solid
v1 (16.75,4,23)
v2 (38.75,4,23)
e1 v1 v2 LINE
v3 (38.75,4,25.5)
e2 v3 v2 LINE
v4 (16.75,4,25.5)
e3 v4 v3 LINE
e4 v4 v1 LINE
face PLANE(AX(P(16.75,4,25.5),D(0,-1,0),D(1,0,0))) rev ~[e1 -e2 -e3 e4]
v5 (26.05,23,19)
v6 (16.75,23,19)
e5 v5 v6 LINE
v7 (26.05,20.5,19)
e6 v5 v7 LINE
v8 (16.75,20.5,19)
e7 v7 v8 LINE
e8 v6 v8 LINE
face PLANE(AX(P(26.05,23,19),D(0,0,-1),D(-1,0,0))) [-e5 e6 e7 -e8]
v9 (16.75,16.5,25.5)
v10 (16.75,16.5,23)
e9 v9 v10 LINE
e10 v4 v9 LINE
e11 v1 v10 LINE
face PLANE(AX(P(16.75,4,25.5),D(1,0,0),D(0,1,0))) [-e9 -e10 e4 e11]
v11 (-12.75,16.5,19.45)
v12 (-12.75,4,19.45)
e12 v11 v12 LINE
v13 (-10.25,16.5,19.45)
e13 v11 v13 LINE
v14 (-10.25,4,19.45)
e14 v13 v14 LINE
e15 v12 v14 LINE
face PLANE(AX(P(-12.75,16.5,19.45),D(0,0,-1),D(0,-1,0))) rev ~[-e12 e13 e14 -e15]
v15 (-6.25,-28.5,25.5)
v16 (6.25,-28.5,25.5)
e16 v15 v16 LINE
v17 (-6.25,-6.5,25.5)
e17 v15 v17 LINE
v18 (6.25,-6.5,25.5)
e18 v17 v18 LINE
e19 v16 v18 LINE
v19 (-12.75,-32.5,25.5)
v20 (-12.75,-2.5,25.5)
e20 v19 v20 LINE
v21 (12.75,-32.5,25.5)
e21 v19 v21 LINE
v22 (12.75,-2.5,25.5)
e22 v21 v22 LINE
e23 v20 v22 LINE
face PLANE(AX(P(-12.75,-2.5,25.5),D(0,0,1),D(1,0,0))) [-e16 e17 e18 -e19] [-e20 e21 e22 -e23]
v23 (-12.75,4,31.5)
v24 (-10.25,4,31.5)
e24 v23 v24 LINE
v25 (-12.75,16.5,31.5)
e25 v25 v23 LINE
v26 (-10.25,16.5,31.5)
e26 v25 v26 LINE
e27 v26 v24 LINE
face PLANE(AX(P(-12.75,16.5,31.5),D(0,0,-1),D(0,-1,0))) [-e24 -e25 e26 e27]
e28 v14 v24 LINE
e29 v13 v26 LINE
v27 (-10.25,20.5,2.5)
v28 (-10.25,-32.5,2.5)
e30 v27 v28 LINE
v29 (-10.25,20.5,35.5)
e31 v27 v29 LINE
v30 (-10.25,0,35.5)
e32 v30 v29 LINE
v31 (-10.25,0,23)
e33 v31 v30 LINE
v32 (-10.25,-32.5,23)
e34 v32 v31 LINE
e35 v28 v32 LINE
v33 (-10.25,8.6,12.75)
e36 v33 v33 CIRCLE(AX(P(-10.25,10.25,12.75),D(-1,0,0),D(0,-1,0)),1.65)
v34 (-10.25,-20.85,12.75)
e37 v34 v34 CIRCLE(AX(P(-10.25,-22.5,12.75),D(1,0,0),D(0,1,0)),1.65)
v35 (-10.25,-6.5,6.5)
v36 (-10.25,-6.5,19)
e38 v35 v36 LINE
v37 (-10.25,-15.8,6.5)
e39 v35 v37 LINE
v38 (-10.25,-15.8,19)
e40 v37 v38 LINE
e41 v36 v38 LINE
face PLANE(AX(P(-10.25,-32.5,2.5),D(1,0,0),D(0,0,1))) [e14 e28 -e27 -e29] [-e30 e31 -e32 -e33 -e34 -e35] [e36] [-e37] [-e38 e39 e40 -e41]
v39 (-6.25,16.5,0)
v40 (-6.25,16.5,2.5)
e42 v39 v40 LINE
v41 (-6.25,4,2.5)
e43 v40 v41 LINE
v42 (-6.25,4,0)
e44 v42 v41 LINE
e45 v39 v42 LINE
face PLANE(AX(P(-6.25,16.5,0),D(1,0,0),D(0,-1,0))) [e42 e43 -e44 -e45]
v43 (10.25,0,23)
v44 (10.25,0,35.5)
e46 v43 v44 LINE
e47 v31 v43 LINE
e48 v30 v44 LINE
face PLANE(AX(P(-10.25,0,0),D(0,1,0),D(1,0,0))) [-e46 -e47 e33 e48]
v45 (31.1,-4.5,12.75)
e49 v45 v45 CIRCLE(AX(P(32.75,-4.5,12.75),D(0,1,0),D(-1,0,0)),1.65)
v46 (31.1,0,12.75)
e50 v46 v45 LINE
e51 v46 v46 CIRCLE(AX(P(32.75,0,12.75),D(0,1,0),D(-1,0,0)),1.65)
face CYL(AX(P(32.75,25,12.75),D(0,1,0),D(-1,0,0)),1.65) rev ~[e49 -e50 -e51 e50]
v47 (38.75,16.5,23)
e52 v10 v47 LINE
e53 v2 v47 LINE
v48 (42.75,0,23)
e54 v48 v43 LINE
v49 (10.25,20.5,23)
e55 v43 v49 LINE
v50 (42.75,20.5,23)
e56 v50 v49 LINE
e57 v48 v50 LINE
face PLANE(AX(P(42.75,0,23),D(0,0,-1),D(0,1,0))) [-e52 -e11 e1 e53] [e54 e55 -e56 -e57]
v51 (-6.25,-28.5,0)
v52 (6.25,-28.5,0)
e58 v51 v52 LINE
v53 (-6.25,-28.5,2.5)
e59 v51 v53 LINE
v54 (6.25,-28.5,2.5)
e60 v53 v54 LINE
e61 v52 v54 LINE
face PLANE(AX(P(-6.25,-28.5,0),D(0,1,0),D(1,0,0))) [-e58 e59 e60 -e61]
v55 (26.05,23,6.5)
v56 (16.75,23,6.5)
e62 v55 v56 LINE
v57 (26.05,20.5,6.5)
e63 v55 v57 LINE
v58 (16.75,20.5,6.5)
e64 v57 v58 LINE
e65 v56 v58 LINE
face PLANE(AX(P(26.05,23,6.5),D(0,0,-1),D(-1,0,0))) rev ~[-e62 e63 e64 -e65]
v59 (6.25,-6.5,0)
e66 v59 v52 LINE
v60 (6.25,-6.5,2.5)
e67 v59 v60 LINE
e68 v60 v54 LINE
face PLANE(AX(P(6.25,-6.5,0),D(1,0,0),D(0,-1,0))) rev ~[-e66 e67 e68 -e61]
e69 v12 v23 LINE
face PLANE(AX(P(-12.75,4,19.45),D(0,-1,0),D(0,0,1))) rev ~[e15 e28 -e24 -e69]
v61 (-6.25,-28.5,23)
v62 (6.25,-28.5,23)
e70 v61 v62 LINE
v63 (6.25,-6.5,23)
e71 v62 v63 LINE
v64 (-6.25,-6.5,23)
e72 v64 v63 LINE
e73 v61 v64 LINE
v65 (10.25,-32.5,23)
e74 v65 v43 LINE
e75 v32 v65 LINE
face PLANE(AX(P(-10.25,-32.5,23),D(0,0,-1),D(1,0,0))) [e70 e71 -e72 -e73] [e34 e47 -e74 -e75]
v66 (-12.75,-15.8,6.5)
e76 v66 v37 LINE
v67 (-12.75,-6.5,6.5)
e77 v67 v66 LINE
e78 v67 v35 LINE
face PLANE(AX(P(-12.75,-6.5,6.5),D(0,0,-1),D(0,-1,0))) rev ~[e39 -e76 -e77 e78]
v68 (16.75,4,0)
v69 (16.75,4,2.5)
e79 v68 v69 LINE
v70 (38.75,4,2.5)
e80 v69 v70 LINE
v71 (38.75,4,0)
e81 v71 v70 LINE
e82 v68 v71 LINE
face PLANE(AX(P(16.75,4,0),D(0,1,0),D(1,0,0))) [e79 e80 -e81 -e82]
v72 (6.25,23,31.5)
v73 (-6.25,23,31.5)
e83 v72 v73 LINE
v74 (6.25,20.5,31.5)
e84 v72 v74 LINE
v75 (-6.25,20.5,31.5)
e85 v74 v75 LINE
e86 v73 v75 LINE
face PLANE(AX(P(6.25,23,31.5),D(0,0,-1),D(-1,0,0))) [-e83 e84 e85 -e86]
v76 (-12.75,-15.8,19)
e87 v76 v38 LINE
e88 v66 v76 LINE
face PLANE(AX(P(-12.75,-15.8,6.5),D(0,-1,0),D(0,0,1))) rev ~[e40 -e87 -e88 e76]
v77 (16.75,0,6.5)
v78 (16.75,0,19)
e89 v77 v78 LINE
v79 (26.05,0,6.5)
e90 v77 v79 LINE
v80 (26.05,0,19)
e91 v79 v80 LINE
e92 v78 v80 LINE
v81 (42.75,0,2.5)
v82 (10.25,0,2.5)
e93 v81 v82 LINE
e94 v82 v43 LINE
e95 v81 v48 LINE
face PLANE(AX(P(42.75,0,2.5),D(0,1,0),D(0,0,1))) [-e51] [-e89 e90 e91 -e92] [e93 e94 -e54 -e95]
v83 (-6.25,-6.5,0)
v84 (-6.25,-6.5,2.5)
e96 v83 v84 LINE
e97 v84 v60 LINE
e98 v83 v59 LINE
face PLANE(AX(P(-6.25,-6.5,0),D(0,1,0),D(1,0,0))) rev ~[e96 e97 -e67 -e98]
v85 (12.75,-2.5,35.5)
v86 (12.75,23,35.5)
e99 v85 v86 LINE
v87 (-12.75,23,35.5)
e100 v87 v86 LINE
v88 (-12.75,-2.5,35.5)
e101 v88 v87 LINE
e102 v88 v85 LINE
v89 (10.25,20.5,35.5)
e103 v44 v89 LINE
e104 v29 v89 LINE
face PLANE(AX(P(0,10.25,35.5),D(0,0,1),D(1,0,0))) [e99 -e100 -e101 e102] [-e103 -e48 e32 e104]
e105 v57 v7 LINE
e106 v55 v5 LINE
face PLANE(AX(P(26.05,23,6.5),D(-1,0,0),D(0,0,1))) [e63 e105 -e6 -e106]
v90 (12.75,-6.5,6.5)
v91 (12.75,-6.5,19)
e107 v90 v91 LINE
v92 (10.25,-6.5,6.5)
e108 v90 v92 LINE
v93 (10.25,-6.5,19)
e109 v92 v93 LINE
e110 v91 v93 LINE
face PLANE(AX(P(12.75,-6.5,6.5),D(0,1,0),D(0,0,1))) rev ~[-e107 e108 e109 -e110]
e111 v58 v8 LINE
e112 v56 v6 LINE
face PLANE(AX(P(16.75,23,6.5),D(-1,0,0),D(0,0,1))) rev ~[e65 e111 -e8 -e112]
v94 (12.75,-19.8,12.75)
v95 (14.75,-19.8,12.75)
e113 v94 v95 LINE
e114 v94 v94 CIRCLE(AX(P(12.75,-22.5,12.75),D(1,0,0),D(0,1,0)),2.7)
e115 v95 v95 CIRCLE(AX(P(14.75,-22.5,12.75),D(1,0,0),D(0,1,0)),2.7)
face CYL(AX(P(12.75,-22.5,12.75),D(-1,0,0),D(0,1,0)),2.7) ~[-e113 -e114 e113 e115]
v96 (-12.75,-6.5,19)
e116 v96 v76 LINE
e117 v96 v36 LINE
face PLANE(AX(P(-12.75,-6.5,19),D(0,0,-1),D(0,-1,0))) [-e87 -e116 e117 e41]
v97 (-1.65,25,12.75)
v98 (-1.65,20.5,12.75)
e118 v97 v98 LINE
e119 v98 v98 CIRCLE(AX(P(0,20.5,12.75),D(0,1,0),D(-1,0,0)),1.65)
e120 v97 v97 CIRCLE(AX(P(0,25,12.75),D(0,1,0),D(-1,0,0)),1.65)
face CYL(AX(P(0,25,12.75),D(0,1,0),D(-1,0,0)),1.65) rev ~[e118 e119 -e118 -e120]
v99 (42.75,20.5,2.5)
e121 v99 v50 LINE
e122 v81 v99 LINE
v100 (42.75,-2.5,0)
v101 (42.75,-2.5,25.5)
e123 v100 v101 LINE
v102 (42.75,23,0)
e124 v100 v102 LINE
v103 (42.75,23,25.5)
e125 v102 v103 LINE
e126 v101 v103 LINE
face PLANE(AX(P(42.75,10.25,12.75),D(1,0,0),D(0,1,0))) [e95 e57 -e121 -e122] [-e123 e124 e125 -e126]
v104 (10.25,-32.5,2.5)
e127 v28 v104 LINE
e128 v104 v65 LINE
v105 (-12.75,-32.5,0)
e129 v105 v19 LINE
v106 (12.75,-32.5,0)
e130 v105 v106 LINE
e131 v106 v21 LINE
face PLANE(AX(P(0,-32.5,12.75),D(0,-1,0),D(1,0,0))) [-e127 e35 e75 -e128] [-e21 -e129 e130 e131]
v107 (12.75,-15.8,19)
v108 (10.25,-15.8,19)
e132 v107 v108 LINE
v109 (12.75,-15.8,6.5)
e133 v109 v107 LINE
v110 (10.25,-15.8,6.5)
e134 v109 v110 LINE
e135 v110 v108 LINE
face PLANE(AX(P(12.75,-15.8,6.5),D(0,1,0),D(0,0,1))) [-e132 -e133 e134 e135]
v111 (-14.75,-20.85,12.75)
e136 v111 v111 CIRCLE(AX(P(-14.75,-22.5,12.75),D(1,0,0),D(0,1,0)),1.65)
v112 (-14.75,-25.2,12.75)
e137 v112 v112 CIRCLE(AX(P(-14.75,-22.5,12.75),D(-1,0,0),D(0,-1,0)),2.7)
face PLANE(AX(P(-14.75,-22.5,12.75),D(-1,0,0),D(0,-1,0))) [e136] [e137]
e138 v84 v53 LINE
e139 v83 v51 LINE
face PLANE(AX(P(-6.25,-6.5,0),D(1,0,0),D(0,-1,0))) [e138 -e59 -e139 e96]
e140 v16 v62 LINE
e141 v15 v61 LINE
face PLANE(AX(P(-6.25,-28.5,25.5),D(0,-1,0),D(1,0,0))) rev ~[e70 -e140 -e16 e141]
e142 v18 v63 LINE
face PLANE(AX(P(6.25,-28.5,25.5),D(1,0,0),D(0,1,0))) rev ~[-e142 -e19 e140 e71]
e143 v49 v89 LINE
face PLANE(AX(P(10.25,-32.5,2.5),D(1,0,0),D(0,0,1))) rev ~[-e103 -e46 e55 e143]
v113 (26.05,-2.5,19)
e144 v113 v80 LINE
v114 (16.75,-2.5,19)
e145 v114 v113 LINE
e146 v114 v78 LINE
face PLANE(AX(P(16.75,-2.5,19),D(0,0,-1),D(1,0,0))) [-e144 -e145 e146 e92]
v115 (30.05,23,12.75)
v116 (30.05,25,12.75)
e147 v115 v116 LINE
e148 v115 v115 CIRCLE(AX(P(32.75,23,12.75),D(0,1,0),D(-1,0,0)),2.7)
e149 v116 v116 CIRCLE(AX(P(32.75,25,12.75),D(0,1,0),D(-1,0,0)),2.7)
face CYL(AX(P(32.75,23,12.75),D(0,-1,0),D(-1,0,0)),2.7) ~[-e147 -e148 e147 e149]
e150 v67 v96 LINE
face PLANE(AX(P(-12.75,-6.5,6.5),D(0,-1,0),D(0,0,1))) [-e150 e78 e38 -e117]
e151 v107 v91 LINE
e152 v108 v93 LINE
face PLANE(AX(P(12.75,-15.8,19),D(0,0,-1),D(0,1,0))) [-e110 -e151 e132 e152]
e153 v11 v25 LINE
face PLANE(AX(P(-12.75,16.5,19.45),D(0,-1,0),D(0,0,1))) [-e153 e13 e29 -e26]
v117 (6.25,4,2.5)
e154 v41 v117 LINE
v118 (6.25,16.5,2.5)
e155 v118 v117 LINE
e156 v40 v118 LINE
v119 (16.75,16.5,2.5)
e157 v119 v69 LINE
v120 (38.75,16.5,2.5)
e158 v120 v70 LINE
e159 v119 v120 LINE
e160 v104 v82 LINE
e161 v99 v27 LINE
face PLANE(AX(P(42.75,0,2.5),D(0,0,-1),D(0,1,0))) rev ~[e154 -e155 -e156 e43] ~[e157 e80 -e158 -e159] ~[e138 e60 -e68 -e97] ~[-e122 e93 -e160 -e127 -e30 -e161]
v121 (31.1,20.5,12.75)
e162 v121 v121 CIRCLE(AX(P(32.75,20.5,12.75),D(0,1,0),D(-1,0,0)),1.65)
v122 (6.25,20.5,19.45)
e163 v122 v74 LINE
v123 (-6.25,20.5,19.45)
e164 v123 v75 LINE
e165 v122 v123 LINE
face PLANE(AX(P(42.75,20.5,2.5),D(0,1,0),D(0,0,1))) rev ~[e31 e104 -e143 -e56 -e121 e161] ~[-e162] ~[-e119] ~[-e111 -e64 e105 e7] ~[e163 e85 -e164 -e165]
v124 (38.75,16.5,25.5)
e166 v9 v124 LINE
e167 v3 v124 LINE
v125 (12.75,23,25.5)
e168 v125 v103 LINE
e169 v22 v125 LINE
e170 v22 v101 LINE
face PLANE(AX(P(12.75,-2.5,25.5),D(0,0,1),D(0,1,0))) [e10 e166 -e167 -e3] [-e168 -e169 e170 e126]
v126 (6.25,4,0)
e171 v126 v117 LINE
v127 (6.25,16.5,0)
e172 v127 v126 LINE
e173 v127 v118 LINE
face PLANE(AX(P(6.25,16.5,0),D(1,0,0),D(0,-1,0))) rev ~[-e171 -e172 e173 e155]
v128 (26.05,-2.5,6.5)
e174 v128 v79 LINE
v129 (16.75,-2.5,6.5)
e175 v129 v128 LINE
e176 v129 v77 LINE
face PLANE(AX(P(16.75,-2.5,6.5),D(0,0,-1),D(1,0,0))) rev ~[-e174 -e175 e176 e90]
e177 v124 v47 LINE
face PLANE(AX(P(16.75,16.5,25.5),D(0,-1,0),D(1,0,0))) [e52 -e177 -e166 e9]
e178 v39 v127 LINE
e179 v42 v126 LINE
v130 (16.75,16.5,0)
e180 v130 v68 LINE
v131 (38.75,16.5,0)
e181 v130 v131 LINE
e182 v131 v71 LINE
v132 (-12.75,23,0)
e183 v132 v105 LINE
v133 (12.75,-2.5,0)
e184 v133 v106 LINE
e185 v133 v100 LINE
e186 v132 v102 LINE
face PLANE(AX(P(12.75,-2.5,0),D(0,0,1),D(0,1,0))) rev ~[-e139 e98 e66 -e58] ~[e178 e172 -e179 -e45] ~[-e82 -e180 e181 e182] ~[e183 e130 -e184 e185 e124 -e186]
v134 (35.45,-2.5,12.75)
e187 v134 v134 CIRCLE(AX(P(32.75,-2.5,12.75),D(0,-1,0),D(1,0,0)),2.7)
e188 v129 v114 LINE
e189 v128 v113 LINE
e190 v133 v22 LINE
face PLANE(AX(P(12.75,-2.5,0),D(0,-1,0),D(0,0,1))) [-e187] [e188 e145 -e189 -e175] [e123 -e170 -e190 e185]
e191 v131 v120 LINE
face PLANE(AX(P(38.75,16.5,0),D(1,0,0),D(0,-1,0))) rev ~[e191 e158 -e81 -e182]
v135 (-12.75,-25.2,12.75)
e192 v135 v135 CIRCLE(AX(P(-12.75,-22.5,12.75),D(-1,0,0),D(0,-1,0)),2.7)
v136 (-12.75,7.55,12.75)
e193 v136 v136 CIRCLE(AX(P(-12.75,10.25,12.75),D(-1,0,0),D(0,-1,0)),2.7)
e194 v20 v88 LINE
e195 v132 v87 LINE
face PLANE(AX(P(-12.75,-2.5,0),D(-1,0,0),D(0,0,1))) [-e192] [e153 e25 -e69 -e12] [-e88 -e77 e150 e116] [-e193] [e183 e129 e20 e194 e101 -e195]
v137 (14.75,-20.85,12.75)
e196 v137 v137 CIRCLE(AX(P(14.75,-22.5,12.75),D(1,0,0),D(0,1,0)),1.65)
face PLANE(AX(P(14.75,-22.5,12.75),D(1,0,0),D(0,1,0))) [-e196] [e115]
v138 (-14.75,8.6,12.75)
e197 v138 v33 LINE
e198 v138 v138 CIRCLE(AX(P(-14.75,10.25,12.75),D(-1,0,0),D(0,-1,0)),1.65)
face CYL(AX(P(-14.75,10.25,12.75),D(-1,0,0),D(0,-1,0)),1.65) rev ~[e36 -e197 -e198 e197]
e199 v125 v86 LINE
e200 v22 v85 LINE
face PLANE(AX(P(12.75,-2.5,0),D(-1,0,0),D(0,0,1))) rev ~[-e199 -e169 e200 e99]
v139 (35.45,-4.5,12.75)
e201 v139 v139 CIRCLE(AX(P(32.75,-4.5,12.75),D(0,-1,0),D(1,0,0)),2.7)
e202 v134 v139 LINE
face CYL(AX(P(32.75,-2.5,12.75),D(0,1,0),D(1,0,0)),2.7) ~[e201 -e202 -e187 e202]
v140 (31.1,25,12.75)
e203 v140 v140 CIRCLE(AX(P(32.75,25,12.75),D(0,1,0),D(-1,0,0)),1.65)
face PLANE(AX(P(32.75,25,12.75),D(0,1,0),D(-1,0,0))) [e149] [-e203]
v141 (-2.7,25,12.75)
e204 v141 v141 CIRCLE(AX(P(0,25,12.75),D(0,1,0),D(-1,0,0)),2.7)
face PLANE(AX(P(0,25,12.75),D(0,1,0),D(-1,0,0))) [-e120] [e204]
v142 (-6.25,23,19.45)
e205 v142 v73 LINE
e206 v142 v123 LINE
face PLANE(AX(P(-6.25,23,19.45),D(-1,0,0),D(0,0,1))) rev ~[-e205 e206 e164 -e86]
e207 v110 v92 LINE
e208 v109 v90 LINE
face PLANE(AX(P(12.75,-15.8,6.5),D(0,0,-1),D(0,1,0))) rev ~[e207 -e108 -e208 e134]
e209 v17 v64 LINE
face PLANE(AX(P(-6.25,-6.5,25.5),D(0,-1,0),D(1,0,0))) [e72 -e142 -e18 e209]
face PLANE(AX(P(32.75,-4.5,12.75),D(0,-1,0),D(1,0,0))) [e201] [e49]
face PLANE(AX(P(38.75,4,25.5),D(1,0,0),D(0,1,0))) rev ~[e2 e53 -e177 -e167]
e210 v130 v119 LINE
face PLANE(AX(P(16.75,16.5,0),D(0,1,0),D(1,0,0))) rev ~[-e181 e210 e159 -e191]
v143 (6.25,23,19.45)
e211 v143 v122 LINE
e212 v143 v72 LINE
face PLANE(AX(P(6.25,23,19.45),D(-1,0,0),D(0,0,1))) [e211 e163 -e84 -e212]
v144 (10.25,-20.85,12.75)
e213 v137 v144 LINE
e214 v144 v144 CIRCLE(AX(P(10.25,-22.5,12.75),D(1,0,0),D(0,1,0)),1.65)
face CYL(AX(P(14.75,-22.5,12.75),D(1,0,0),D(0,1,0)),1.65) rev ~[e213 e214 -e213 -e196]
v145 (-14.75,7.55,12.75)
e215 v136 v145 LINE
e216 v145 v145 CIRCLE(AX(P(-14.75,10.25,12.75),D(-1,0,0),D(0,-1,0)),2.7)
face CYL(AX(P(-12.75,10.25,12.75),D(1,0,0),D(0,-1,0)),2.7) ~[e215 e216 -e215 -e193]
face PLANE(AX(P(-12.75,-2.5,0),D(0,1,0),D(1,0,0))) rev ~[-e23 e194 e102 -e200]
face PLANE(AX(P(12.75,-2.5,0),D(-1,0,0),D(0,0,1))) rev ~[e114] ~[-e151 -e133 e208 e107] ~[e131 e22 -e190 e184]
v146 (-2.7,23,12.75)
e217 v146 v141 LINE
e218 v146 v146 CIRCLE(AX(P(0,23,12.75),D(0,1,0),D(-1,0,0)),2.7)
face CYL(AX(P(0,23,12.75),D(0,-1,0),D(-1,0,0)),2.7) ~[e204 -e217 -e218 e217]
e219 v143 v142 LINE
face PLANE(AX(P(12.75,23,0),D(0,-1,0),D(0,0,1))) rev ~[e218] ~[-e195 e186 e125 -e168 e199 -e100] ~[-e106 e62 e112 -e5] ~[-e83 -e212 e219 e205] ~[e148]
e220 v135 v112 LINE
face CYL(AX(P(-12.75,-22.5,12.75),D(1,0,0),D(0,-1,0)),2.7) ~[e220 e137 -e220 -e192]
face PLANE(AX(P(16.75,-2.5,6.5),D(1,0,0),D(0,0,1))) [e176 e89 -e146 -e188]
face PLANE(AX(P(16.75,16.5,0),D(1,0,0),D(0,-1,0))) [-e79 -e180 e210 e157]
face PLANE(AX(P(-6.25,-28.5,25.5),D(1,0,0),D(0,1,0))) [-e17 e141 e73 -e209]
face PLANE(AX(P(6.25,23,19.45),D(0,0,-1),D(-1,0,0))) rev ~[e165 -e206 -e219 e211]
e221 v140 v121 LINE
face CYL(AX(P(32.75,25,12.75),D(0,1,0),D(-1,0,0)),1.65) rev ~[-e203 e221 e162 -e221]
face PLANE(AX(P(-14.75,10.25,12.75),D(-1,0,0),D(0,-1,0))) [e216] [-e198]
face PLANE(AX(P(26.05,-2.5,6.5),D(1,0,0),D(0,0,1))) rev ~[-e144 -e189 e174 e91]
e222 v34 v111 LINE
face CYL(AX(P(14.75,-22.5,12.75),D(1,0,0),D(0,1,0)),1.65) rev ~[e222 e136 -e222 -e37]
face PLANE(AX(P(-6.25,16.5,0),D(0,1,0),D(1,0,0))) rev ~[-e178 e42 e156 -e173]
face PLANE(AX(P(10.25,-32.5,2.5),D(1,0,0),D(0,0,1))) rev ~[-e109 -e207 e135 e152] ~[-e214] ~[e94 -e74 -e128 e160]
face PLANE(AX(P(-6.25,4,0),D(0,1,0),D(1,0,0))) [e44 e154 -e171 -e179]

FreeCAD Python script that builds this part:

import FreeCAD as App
import Part
import Sketcher
Q = App.Units.Quantity

doc = App.newDocument("Part")
params = doc.addObject("Spreadsheet::Sheet", "Params")
for row, (alias, value) in enumerate([
    ("sketch1_width", "25.5 mm"),
    ("sketch1_width2", "20.5 mm"),
    ("pad1_length", "35.5 mm"),
    ("sketch2_width", "25.5 mm"),
    ("pad2_length", "30 mm"),
    ("sketch3_width", "25.5 mm"),
    ("pad3_length", "10 mm"),
    ("sketch4_width", "20.5 mm"),
    ("pocket1_length", "32.5 mm"),
    ("sketch5_width", "20.5 mm"),
    ("pad4_length", "2.5 mm"),
    ("sketch6_width", "25.5 mm"),
    ("pad5_length", "30 mm"),
    ("sketch7_width", "20.5 mm"),
    ("pocket2_length", "32.5 mm"),
    ("sketch8_diameter", "5.4 mm"),
    ("pad6_length", "2 mm"),
    ("sketch9_diameter", "5.4 mm"),
    ("pad7_length", "2 mm"),
    ("sketch10_diameter", "3.3 mm"),
    ("pocket3_length", "30 mm"),
    ("sketch11_diameter", "5.4 mm"),
    ("pad8_length", "2 mm"),
    ("sketch12_diameter", "5.4 mm"),
    ("pad9_length", "2 mm"),
    ("sketch13_diameter", "3.3 mm"),
    ("pocket4_length", "30 mm"),
    ("sketch14_diameter", "5.4 mm"),
    ("pad10_length", "2 mm"),
    ("sketch15_diameter", "3.3 mm"),
    ("pocket5_length", "25 mm"),
    ("sketch16_diameter", "5.4 mm"),
    ("pad11_length", "2 mm"),
    ("sketch17_diameter", "3.3 mm"),
    ("pocket6_length", "25 mm"),
    ("sketch18_width", "22 mm"),
    ("sketch18_width2", "12.5 mm"),
    ("pocket7_length", "2.5 mm"),
    ("sketch19_width", "9.3 mm"),
    ("sketch19_height", "12.5 mm"),
    ("pocket8_length", "2.5 mm"),
    ("sketch20_width", "9.3 mm"),
    ("sketch20_width2", "12.5 mm"),
    ("sketch20_height", "12.05 mm"),
    ("pocket9_length", "2.5 mm"),
    ("sketch21_width", "9.3 mm"),
    ("sketch21_width2", "12.5 mm"),
    ("sketch21_height", "12.05 mm"),
    ("pocket10_length", "2.5 mm"),
    ("sketch22_width", "22 mm"),
    ("sketch22_width2", "12.5 mm"),
    ("pocket11_length", "2.5 mm"),
    ("sketch23_width", "9.3 mm"),
    ("sketch23_height", "12.5 mm"),
    ("pocket12_length", "2.5 mm"),
], start=1):
    params.set(f"A{row}", alias)
    params.set(f"B{row}", "=" + value)
    params.setAlias(f"B{row}", alias)

body = doc.addObject("PartDesign::Body", "Body")

# Sketch on XY plane
sketch1 = doc.addObject("Sketcher::SketchObject", "Sketch")
body.addObject(sketch1)
sketch1.AttachmentSupport = (doc.XY_Plane, [""])
sketch1.MapMode = "FlatFace"
sketch1.addGeometry([
    Part.LineSegment(App.Vector(-12.75, 23, 0), App.Vector(-12.75, -2.5, 0)),  # 0
    Part.LineSegment(App.Vector(-12.75, -2.5, 0), App.Vector(12.75, -2.5, 0)),  # 1
    Part.LineSegment(App.Vector(12.75, -2.5, 0), App.Vector(12.75, 23, 0)),  # 2
    Part.LineSegment(App.Vector(12.75, 23, 0), App.Vector(-12.75, 23, 0)),  # 3
    Part.LineSegment(App.Vector(10.25, 0, 0), App.Vector(-10.25, 0, 0)),  # 4
    Part.LineSegment(App.Vector(-10.25, 0, 0), App.Vector(-10.25, 20.5, 0)),  # 5
    Part.LineSegment(App.Vector(-10.25, 20.5, 0), App.Vector(10.25, 20.5, 0)),  # 6
    Part.LineSegment(App.Vector(10.25, 20.5, 0), App.Vector(10.25, 0, 0)),  # 7
], False)
sketch1.addConstraint([
    Sketcher.Constraint("Coincident", 0, 2, 1, 1),
    Sketcher.Constraint("Coincident", 1, 2, 2, 1),
    Sketcher.Constraint("Coincident", 2, 2, 3, 1),
    Sketcher.Constraint("Coincident", 3, 2, 0, 1),
    Sketcher.Constraint("Coincident", 4, 2, 5, 1),
    Sketcher.Constraint("Coincident", 5, 2, 6, 1),
    Sketcher.Constraint("Coincident", 6, 2, 7, 1),
    Sketcher.Constraint("Coincident", 7, 2, 4, 1),
    Sketcher.Constraint("Vertical", 0),
    Sketcher.Constraint("Horizontal", 1),
    Sketcher.Constraint("Vertical", 2),
    Sketcher.Constraint("Horizontal", 3),
    Sketcher.Constraint("Horizontal", 4),
    Sketcher.Constraint("Vertical", 5),
    Sketcher.Constraint("Horizontal", 6),
    Sketcher.Constraint("Vertical", 7),
    Sketcher.Constraint("Symmetric", 4, 2, 7, 2, -1, 1),
    Sketcher.Constraint("Equal", 3, 0),
    Sketcher.Constraint("Equal", 6, 5),
    Sketcher.Constraint("DistanceX", 1, 1, 1, 2, Q("25.5 mm")),
    Sketcher.Constraint("DistanceX", 4, 2, 4, 1, Q("20.5 mm")),
    Sketcher.Constraint("DistanceY", -1, 1, 2, 2, Q("23 mm")),
    Sketcher.Constraint("DistanceX", 4, 2, 1, 2, Q("23 mm")),
])
sketch1.setExpression("Constraints[19]", "Params.sketch1_width")
sketch1.setExpression("Constraints[20]", "Params.sketch1_width2")
pad1 = doc.addObject("PartDesign::Pad", "Pad")
body.addObject(pad1)
pad1.Profile = sketch1
pad1.setExpression("Length", "Params.pad1_length")

# Sketch on XZ plane
sketch2 = doc.addObject("Sketcher::SketchObject", "Sketch001")
body.addObject(sketch2)
sketch2.AttachmentSupport = (doc.XZ_Plane, [""])
sketch2.MapMode = "FlatFace"
sketch2.AttachmentOffset = App.Placement(App.Vector(0, 0, 2.5), App.Rotation())
sketch2.addGeometry([
    Part.LineSegment(App.Vector(-12.75, 25.5, 0), App.Vector(-12.75, 0, 0)),
    Part.LineSegment(App.Vector(-12.75, 0, 0), App.Vector(12.75, 0, 0)),
    Part.LineSegment(App.Vector(12.75, 0, 0), App.Vector(12.75, 25.5, 0)),
    Part.LineSegment(App.Vector(12.75, 25.5, 0), App.Vector(-12.75, 25.5, 0)),
], False)
sketch2.addConstraint([
    Sketcher.Constraint("Coincident", 0, 2, 1, 1),
    Sketcher.Constraint("Coincident", 1, 2, 2, 1),
    Sketcher.Constraint("Coincident", 2, 2, 3, 1),
    Sketcher.Constraint("Coincident", 3, 2, 0, 1),
    Sketcher.Constraint("Vertical", 0),
    Sketcher.Constraint("Horizontal", 1),
    Sketcher.Constraint("Vertical", 2),
    Sketcher.Constraint("Horizontal", 3),
    Sketcher.Constraint("Symmetric", 0, 2, 1, 2, -1, 1),
    Sketcher.Constraint("Equal", 3, 0),
    Sketcher.Constraint("DistanceX", 1, 1, 1, 2, Q("25.5 mm")),
])
sketch2.setExpression("Constraints[10]", "Params.sketch2_width")
pad2 = doc.addObject("PartDesign::Pad", "Pad001")
body.addObject(pad2)
pad2.Profile = sketch2
pad2.setExpression("Length", "Params.pad2_length")

# Sketch on XZ plane
sketch3 = doc.addObject("Sketcher::SketchObject", "Sketch002")
body.addObject(sketch3)
sketch3.AttachmentSupport = (doc.XZ_Plane, [""])
sketch3.MapMode = "FlatFace"
sketch3.AttachmentOffset = App.Placement(App.Vector(0, 0, 2.5), App.Rotation())
sketch3.addGeometry([
    Part.LineSegment(App.Vector(-12.75, 25.5, 0), App.Vector(-12.75, 0, 0)),
    Part.LineSegment(App.Vector(-12.75, 0, 0), App.Vector(12.75, 0, 0)),
    Part.LineSegment(App.Vector(12.75, 0, 0), App.Vector(12.75, 25.5, 0)),
    Part.LineSegment(App.Vector(12.75, 25.5, 0), App.Vector(-12.75, 25.5, 0)),
], False)
sketch3.addConstraint([
    Sketcher.Constraint("Coincident", 0, 2, 1, 1),
    Sketcher.Constraint("Coincident", 1, 2, 2, 1),
    Sketcher.Constraint("Coincident", 2, 2, 3, 1),
    Sketcher.Constraint("Coincident", 3, 2, 0, 1),
    Sketcher.Constraint("Vertical", 0),
    Sketcher.Constraint("Horizontal", 1),
    Sketcher.Constraint("Vertical", 2),
    Sketcher.Constraint("Horizontal", 3),
    Sketcher.Constraint("Symmetric", 0, 2, 1, 2, -1, 1),
    Sketcher.Constraint("Equal", 3, 0),
    Sketcher.Constraint("DistanceX", 1, 1, 1, 2, Q("25.5 mm")),
])
sketch3.setExpression("Constraints[10]", "Params.sketch3_width")
pad3 = doc.addObject("PartDesign::Pad", "Pad002")
body.addObject(pad3)
pad3.Profile = sketch3
pad3.setExpression("Length", "Params.pad3_length")

# Sketch on XZ plane
sketch4 = doc.addObject("Sketcher::SketchObject", "Sketch003")
body.addObject(sketch4)
sketch4.AttachmentSupport = (doc.XZ_Plane, [""])
sketch4.MapMode = "FlatFace"
sketch4.AttachmentOffset = App.Placement(App.Vector(0, 0, 32.5), App.Rotation())
sketch4.addGeometry([
    Part.LineSegment(App.Vector(-10.25, 23, 0), App.Vector(-10.25, 2.5, 0)),
    Part.LineSegment(App.Vector(-10.25, 2.5, 0), App.Vector(10.25, 2.5, 0)),
    Part.LineSegment(App.Vector(10.25, 2.5, 0), App.Vector(10.25, 23, 0)),
    Part.LineSegment(App.Vector(10.25, 23, 0), App.Vector(-10.25, 23, 0)),
], False)
sketch4.addConstraint([
    Sketcher.Constraint("Coincident", 0, 2, 1, 1),
    Sketcher.Constraint("Coincident", 1, 2, 2, 1),
    Sketcher.Constraint("Coincident", 2, 2, 3, 1),
    Sketcher.Constraint("Coincident", 3, 2, 0, 1),
    Sketcher.Constraint("Vertical", 0),
    Sketcher.Constraint("Horizontal", 1),
    Sketcher.Constraint("Vertical", 2),
    Sketcher.Constraint("Horizontal", 3),
    Sketcher.Constraint("Equal", 3, 0),
    Sketcher.Constraint("DistanceX", 1, 1, 1, 2, Q("20.5 mm")),
    Sketcher.Constraint("DistanceY", -1, 1, 2, 2, Q("23 mm")),
    Sketcher.Constraint("DistanceX", 0, 2, -1, 1, Q("10.25 mm")),
])
sketch4.setExpression("Constraints[9]", "Params.sketch4_width")
pocket1 = doc.addObject("PartDesign::Pocket", "Pocket")
body.addObject(pocket1)
pocket1.Profile = sketch4
pocket1.setExpression("Length", "Params.pocket1_length")

# Sketch on XY plane
sketch5 = doc.addObject("Sketcher::SketchObject", "Sketch004")
body.addObject(sketch5)
sketch5.AttachmentSupport = (doc.XY_Plane, [""])
sketch5.MapMode = "FlatFace"
sketch5.addGeometry([
    Part.LineSegment(App.Vector(-10.25, 0, 0), App.Vector(-10.25, 20.5, 0)),
    Part.LineSegment(App.Vector(-10.25, 20.5, 0), App.Vector(10.25, 20.5, 0)),
    Part.LineSegment(App.Vector(10.25, 20.5, 0), App.Vector(10.25, 0, 0)),
    Part.LineSegment(App.Vector(10.25, 0, 0), App.Vector(-10.25, 0, 0)),
], False)
sketch5.addConstraint([
    Sketcher.Constraint("Coincident", 0, 2, 1, 1),
    Sketcher.Constraint("Coincident", 1, 2, 2, 1),
    Sketcher.Constraint("Coincident", 2, 2, 3, 1),
    Sketcher.Constraint("Coincident", 3, 2, 0, 1),
    Sketcher.Constraint("Vertical", 0),
    Sketcher.Constraint("Horizontal", 1),
    Sketcher.Constraint("Vertical", 2),
    Sketcher.Constraint("Horizontal", 3),
    Sketcher.Constraint("Symmetric", 2, 2, 3, 2, -1, 1),
    Sketcher.Constraint("Equal", 3, 0),
    Sketcher.Constraint("DistanceX", 1, 1, 1, 2, Q("20.5 mm")),
])
sketch5.setExpression("Constraints[10]", "Params.sketch5_width")
pad4 = doc.addObject("PartDesign::Pad", "Pad003")
body.addObject(pad4)
pad4.Profile = sketch5
pad4.setExpression("Length", "Params.pad4_length")

# Sketch on YZ plane
sketch6 = doc.addObject("Sketcher::SketchObject", "Sketch005")
body.addObject(sketch6)
sketch6.AttachmentSupport = (doc.YZ_Plane, [""])
sketch6.MapMode = "FlatFace"
sketch6.AttachmentOffset = App.Placement(App.Vector(0, 0, 12.75), App.Rotation())
sketch6.addGeometry([
    Part.LineSegment(App.Vector(-2.5, 25.5, 0), App.Vector(-2.5, 0, 0)),
    Part.LineSegment(App.Vector(-2.5, 0, 0), App.Vector(23, 0, 0)),
    Part.LineSegment(App.Vector(23, 0, 0), App.Vector(23, 25.5, 0)),
    Part.LineSegment(App.Vector(23, 25.5, 0), App.Vector(-2.5, 25.5, 0)),
], False)
sketch6.addConstraint([
    Sketcher.Constraint("Coincident", 0, 2, 1, 1),
    Sketcher.Constraint("Coincident", 1, 2, 2, 1),
    Sketcher.Constraint("Coincident", 2, 2, 3, 1),
    Sketcher.Constraint("Coincident", 3, 2, 0, 1),
    Sketcher.Constraint("Vertical", 0),
    Sketcher.Constraint("Horizontal", 1),
    Sketcher.Constraint("Vertical", 2),
    Sketcher.Constraint("Horizontal", 3),
    Sketcher.Constraint("PointOnObject", 0, 2, -1),
    Sketcher.Constraint("Equal", 3, 0),
    Sketcher.Constraint("DistanceX", 1, 1, 1, 2, Q("25.5 mm")),
    Sketcher.Constraint("DistanceX", -1, 1, 1, 2, Q("23 mm")),
])
sketch6.setExpression("Constraints[10]", "Params.sketch6_width")
pad5 = doc.addObject("PartDesign::Pad", "Pad004")
body.addObject(pad5)
pad5.Profile = sketch6
pad5.setExpression("Length", "Params.pad5_length")

# Sketch on YZ plane
sketch7 = doc.addObject("Sketcher::SketchObject", "Sketch006")
body.addObject(sketch7)
sketch7.AttachmentSupport = (doc.YZ_Plane, [""])
sketch7.MapMode = "FlatFace"
sketch7.AttachmentOffset = App.Placement(App.Vector(0, 0, 42.75), App.Rotation())
sketch7.addGeometry([
    Part.LineSegment(App.Vector(0, 23, 0), App.Vector(0, 2.5, 0)),
    Part.LineSegment(App.Vector(0, 2.5, 0), App.Vector(20.5, 2.5, 0)),
    Part.LineSegment(App.Vector(20.5, 2.5, 0), App.Vector(20.5, 23, 0)),
    Part.LineSegment(App.Vector(20.5, 23, 0), App.Vector(0, 23, 0)),
], False)
sketch7.addConstraint([
    Sketcher.Constraint("Coincident", 0, 2, 1, 1),
    Sketcher.Constraint("Coincident", 1, 2, 2, 1),
    Sketcher.Constraint("Coincident", 2, 2, 3, 1),
    Sketcher.Constraint("Coincident", 3, 2, 0, 1),
    Sketcher.Constraint("Vertical", 0),
    Sketcher.Constraint("Horizontal", 1),
    Sketcher.Constraint("Vertical", 2),
    Sketcher.Constraint("Horizontal", 3),
    Sketcher.Constraint("PointOnObject", 0, 2, -2),
    Sketcher.Constraint("Equal", 3, 0),
    Sketcher.Constraint("DistanceX", 1, 1, 1, 2, Q("20.5 mm")),
    Sketcher.Constraint("DistanceY", -1, 1, 2, 2, Q("23 mm")),
])
sketch7.setExpression("Constraints[10]", "Params.sketch7_width")
pocket2 = doc.addObject("PartDesign::Pocket", "Pocket001")
body.addObject(pocket2)
pocket2.Profile = sketch7
pocket2.setExpression("Length", "Params.pocket2_length")

# Sketch on YZ plane
sketch8 = doc.addObject("Sketcher::SketchObject", "Sketch007")
body.addObject(sketch8)
sketch8.AttachmentSupport = (doc.YZ_Plane, [""])
sketch8.MapMode = "FlatFace"
sketch8.AttachmentOffset = App.Placement(App.Vector(0, 0, 12.75), App.Rotation())
sketch8.addGeometry(Part.Circle(App.Vector(-22.5, 12.75, 0), App.Vector(0, 0, 1), 2.7), False)
sketch8.addConstraint([
    Sketcher.Constraint("Diameter", 0, Q("5.4 mm")),
    Sketcher.Constraint("DistanceX", 0, 3, -1, 1, Q("22.5 mm")),
    Sketcher.Constraint("DistanceY", -1, 1, 0, 3, Q("12.75 mm")),
])
sketch8.setExpression("Constraints[0]", "Params.sketch8_diameter")
pad6 = doc.addObject("PartDesign::Pad", "Pad005")
body.addObject(pad6)
pad6.Profile = sketch8
pad6.setExpression("Length", "Params.pad6_length")

# Sketch on YZ plane
sketch9 = doc.addObject("Sketcher::SketchObject", "Sketch008")
body.addObject(sketch9)
sketch9.AttachmentSupport = (doc.YZ_Plane, [""])
sketch9.MapMode = "FlatFace"
sketch9.AttachmentOffset = App.Placement(App.Vector(0, 0, -12.75), App.Rotation())
sketch9.addGeometry(Part.Circle(App.Vector(-22.5, 12.75, 0), App.Vector(0, 0, 1), 2.7), False)
sketch9.addConstraint([
    Sketcher.Constraint("Diameter", 0, Q("5.4 mm")),
    Sketcher.Constraint("DistanceX", 0, 3, -1, 1, Q("22.5 mm")),
    Sketcher.Constraint("DistanceY", -1, 1, 0, 3, Q("12.75 mm")),
])
sketch9.setExpression("Constraints[0]", "Params.sketch9_diameter")
pad7 = doc.addObject("PartDesign::Pad", "Pad006")
body.addObject(pad7)
pad7.Profile = sketch9
pad7.setExpression("Length", "Params.pad7_length")
pad7.Reversed = True

# Sketch on YZ plane
sketch10 = doc.addObject("Sketcher::SketchObject", "Sketch009")
body.addObject(sketch10)
sketch10.AttachmentSupport = (doc.YZ_Plane, [""])
sketch10.MapMode = "FlatFace"
sketch10.AttachmentOffset = App.Placement(App.Vector(0, 0, 14.75), App.Rotation())
sketch10.addGeometry(Part.Circle(App.Vector(-22.5, 12.75, 0), App.Vector(0, 0, 1), 1.65), False)
sketch10.addConstraint([
    Sketcher.Constraint("Diameter", 0, Q("3.3 mm")),
    Sketcher.Constraint("DistanceX", 0, 3, -1, 1, Q("22.5 mm")),
    Sketcher.Constraint("DistanceY", -1, 1, 0, 3, Q("12.75 mm")),
])
sketch10.setExpression("Constraints[0]", "Params.sketch10_diameter")
pocket3 = doc.addObject("PartDesign::Pocket", "Pocket002")
body.addObject(pocket3)
pocket3.Profile = sketch10
pocket3.setExpression("Length", "Params.pocket3_length")

# Sketch on XZ plane
sketch11 = doc.addObject("Sketcher::SketchObject", "Sketch010")
body.addObject(sketch11)
sketch11.AttachmentSupport = (doc.XZ_Plane, [""])
sketch11.MapMode = "FlatFace"
sketch11.AttachmentOffset = App.Placement(App.Vector(0, 0, 2.5), App.Rotation())
sketch11.addGeometry(Part.Circle(App.Vector(32.75, 12.75, 0), App.Vector(0, 0, 1), 2.7), False)
sketch11.addConstraint([
    Sketcher.Constraint("Diameter", 0, Q("5.4 mm")),
    Sketcher.Constraint("DistanceX", -1, 1, 0, 3, Q("32.75 mm")),
    Sketcher.Constraint("DistanceY", -1, 1, 0, 3, Q("12.75 mm")),
])
sketch11.setExpression("Constraints[0]", "Params.sketch11_diameter")
pad8 = doc.addObject("PartDesign::Pad", "Pad007")
body.addObject(pad8)
pad8.Profile = sketch11
pad8.setExpression("Length", "Params.pad8_length")

# Sketch on XZ plane
sketch12 = doc.addObject("Sketcher::SketchObject", "Sketch011")
body.addObject(sketch12)
sketch12.AttachmentSupport = (doc.XZ_Plane, [""])
sketch12.MapMode = "FlatFace"
sketch12.AttachmentOffset = App.Placement(App.Vector(0, 0, -23), App.Rotation())
sketch12.addGeometry(Part.Circle(App.Vector(32.75, 12.75, 0), App.Vector(0, 0, 1), 2.7), False)
sketch12.addConstraint([
    Sketcher.Constraint("Diameter", 0, Q("5.4 mm")),
    Sketcher.Constraint("DistanceX", -1, 1, 0, 3, Q("32.75 mm")),
    Sketcher.Constraint("DistanceY", -1, 1, 0, 3, Q("12.75 mm")),
])
sketch12.setExpression("Constraints[0]", "Params.sketch12_diameter")
pad9 = doc.addObject("PartDesign::Pad", "Pad008")
body.addObject(pad9)
pad9.Profile = sketch12
pad9.setExpression("Length", "Params.pad9_length")
pad9.Reversed = True

# Sketch on XZ plane
sketch13 = doc.addObject("Sketcher::SketchObject", "Sketch012")
body.addObject(sketch13)
sketch13.AttachmentSupport = (doc.XZ_Plane, [""])
sketch13.MapMode = "FlatFace"
sketch13.AttachmentOffset = App.Placement(App.Vector(0, 0, -25), App.Rotation())
sketch13.addGeometry(Part.Circle(App.Vector(32.75, 12.75, 0), App.Vector(0, 0, 1), 1.65), False)
sketch13.addConstraint([
    Sketcher.Constraint("Diameter", 0, Q("3.3 mm")),
    Sketcher.Constraint("DistanceX", -1, 1, 0, 3, Q("32.75 mm")),
    Sketcher.Constraint("DistanceY", -1, 1, 0, 3, Q("12.75 mm")),
])
sketch13.setExpression("Constraints[0]", "Params.sketch13_diameter")
pocket4 = doc.addObject("PartDesign::Pocket", "Pocket003")
body.addObject(pocket4)
pocket4.Profile = sketch13
pocket4.setExpression("Length", "Params.pocket4_length")
pocket4.Reversed = True

# Sketch on YZ plane
sketch14 = doc.addObject("Sketcher::SketchObject", "Sketch013")
body.addObject(sketch14)
sketch14.AttachmentSupport = (doc.YZ_Plane, [""])
sketch14.MapMode = "FlatFace"
sketch14.AttachmentOffset = App.Placement(App.Vector(0, 0, -12.75), App.Rotation())
sketch14.addGeometry(Part.Circle(App.Vector(10.25, 12.75, 0), App.Vector(0, 0, 1), 2.7), False)
sketch14.addConstraint([
    Sketcher.Constraint("Diameter", 0, Q("5.4 mm")),
    Sketcher.Constraint("DistanceX", -1, 1, 0, 3, Q("10.25 mm")),
    Sketcher.Constraint("DistanceY", -1, 1, 0, 3, Q("12.75 mm")),
])
sketch14.setExpression("Constraints[0]", "Params.sketch14_diameter")
pad10 = doc.addObject("PartDesign::Pad", "Pad009")
body.addObject(pad10)
pad10.Profile = sketch14
pad10.setExpression("Length", "Params.pad10_length")
pad10.Reversed = True

# Sketch on YZ plane
sketch15 = doc.addObject("Sketcher::SketchObject", "Sketch014")
body.addObject(sketch15)
sketch15.AttachmentSupport = (doc.YZ_Plane, [""])
sketch15.MapMode = "FlatFace"
sketch15.AttachmentOffset = App.Placement(App.Vector(0, 0, -14.75), App.Rotation())
sketch15.addGeometry(Part.Circle(App.Vector(10.25, 12.75, 0), App.Vector(0, 0, 1), 1.65), False)
sketch15.addConstraint([
    Sketcher.Constraint("Diameter", 0, Q("3.3 mm")),
    Sketcher.Constraint("DistanceX", -1, 1, 0, 3, Q("10.25 mm")),
    Sketcher.Constraint("DistanceY", -1, 1, 0, 3, Q("12.75 mm")),
])
sketch15.setExpression("Constraints[0]", "Params.sketch15_diameter")
pocket5 = doc.addObject("PartDesign::Pocket", "Pocket004")
body.addObject(pocket5)
pocket5.Profile = sketch15
pocket5.setExpression("Length", "Params.pocket5_length")
pocket5.Reversed = True

# Sketch on XZ plane
sketch16 = doc.addObject("Sketcher::SketchObject", "Sketch015")
body.addObject(sketch16)
sketch16.AttachmentSupport = (doc.XZ_Plane, [""])
sketch16.MapMode = "FlatFace"
sketch16.AttachmentOffset = App.Placement(App.Vector(0, 0, -23), App.Rotation())
sketch16.addGeometry(Part.Circle(App.Vector(0, 12.75, 0), App.Vector(0, 0, 1), 2.7), False)
sketch16.addConstraint([
    Sketcher.Constraint("PointOnObject", 0, 3, -2),
    Sketcher.Constraint("Diameter", 0, Q("5.4 mm")),
    Sketcher.Constraint("DistanceY", -1, 1, 0, 3, Q("12.75 mm")),
])
sketch16.setExpression("Constraints[1]", "Params.sketch16_diameter")
pad11 = doc.addObject("PartDesign::Pad", "Pad010")
body.addObject(pad11)
pad11.Profile = sketch16
pad11.setExpression("Length", "Params.pad11_length")
pad11.Reversed = True

# Sketch on XZ plane
sketch17 = doc.addObject("Sketcher::SketchObject", "Sketch016")
body.addObject(sketch17)
sketch17.AttachmentSupport = (doc.XZ_Plane, [""])
sketch17.MapMode = "FlatFace"
sketch17.AttachmentOffset = App.Placement(App.Vector(0, 0, -25), App.Rotation())
sketch17.addGeometry(Part.Circle(App.Vector(0, 12.75, 0), App.Vector(0, 0, 1), 1.65), False)
sketch17.addConstraint([
    Sketcher.Constraint("PointOnObject", 0, 3, -2),
    Sketcher.Constraint("Diameter", 0, Q("3.3 mm")),
    Sketcher.Constraint("DistanceY", -1, 1, 0, 3, Q("12.75 mm")),
])
sketch17.setExpression("Constraints[1]", "Params.sketch17_diameter")
pocket6 = doc.addObject("PartDesign::Pocket", "Pocket005")
body.addObject(pocket6)
pocket6.Profile = sketch17
pocket6.setExpression("Length", "Params.pocket6_length")
pocket6.Reversed = True

# Sketch on XY plane
sketch18 = doc.addObject("Sketcher::SketchObject", "Sketch017")
body.addObject(sketch18)
sketch18.AttachmentSupport = (doc.XY_Plane, [""])
sketch18.MapMode = "FlatFace"
sketch18.addGeometry([
    Part.LineSegment(App.Vector(16.75, 4, 0), App.Vector(16.75, 16.5, 0)),  # 0
    Part.LineSegment(App.Vector(16.75, 16.5, 0), App.Vector(38.75, 16.5, 0)),  # 1
    Part.LineSegment(App.Vector(38.75, 16.5, 0), App.Vector(38.75, 4, 0)),  # 2
    Part.LineSegment(App.Vector(38.75, 4, 0), App.Vector(16.75, 4, 0)),  # 3
    Part.LineSegment(App.Vector(-6.25, 4, 0), App.Vector(-6.25, 16.5, 0)),  # 4
    Part.LineSegment(App.Vector(-6.25, 16.5, 0), App.Vector(6.25, 16.5, 0)),  # 5
    Part.LineSegment(App.Vector(6.25, 16.5, 0), App.Vector(6.25, 4, 0)),  # 6
    Part.LineSegment(App.Vector(6.25, 4, 0), App.Vector(-6.25, 4, 0)),  # 7
    Part.LineSegment(App.Vector(-6.25, -28.5, 0), App.Vector(-6.25, -6.5, 0)),  # 8
    Part.LineSegment(App.Vector(-6.25, -6.5, 0), App.Vector(6.25, -6.5, 0)),  # 9
    Part.LineSegment(App.Vector(6.25, -6.5, 0), App.Vector(6.25, -28.5, 0)),  # 10
    Part.LineSegment(App.Vector(6.25, -28.5, 0), App.Vector(-6.25, -28.5, 0)),  # 11
], False)
sketch18.addConstraint([
    Sketcher.Constraint("Coincident", 0, 2, 1, 1),
    Sketcher.Constraint("Coincident", 1, 2, 2, 1),
    Sketcher.Constraint("Coincident", 2, 2, 3, 1),
    Sketcher.Constraint("Coincident", 3, 2, 0, 1),
    Sketcher.Constraint("Coincident", 4, 2, 5, 1),
    Sketcher.Constraint("Coincident", 5, 2, 6, 1),
    Sketcher.Constraint("Coincident", 6, 2, 7, 1),
    Sketcher.Constraint("Coincident", 7, 2, 4, 1),
    Sketcher.Constraint("Coincident", 8, 2, 9, 1),
    Sketcher.Constraint("Coincident", 9, 2, 10, 1),
    Sketcher.Constraint("Coincident", 10, 2, 11, 1),
    Sketcher.Constraint("Coincident", 11, 2, 8, 1),
    Sketcher.Constraint("Vertical", 0),
    Sketcher.Constraint("Horizontal", 1),
    Sketcher.Constraint("Vertical", 2),
    Sketcher.Constraint("Horizontal", 3),
    Sketcher.Constraint("Vertical", 4),
    Sketcher.Constraint("Horizontal", 5),
    Sketcher.Constraint("Vertical", 6),
    Sketcher.Constraint("Horizontal", 7),
    Sketcher.Constraint("Vertical", 8),
    Sketcher.Constraint("Horizontal", 9),
    Sketcher.Constraint("Vertical", 10),
    Sketcher.Constraint("Horizontal", 11),
    Sketcher.Constraint("Horizontal", 1, 2, 4, 2),
    Sketcher.Constraint("Horizontal", 3, 2, 6, 2),
    Sketcher.Constraint("Vertical", 7, 2, 8, 2),
    Sketcher.Constraint("Vertical", 6, 2, 9, 2),
    Sketcher.Constraint("Equal", 11, 0),
    Sketcher.Constraint("Equal", 3, 8),
    Sketcher.Constraint("DistanceX", 1, 1, 1, 2, Q("22 mm")),
    Sketcher.Constraint("DistanceX", 5, 1, 5, 2, Q("12.5 mm")),
    Sketcher.Constraint("DistanceY", -1, 1, 2, 2, Q("4 mm")),
    Sketcher.Constraint("DistanceX", 4, 2, 0, 2, Q("23 mm")),
    Sketcher.Constraint("DistanceY", 8, 2, 4, 2, Q("23 mm")),
    Sketcher.Constraint("DistanceX", -1, 1, 0, 2, Q("16.75 mm")),
])
sketch18.setExpression("Constraints[30]", "Params.sketch18_width")
sketch18.setExpression("Constraints[31]", "Params.sketch18_width2")
pocket7 = doc.addObject("PartDesign::Pocket", "Pocket006")
body.addObject(pocket7)
pocket7.Profile = sketch18
pocket7.setExpression("Length", "Params.pocket7_length")
pocket7.Reversed = True

# Sketch on YZ plane
sketch19 = doc.addObject("Sketcher::SketchObject", "Sketch018")
body.addObject(sketch19)
sketch19.AttachmentSupport = (doc.YZ_Plane, [""])
sketch19.MapMode = "FlatFace"
sketch19.AttachmentOffset = App.Placement(App.Vector(0, 0, 12.75), App.Rotation())
sketch19.addGeometry([
    Part.LineSegment(App.Vector(-15.8, 19, 0), App.Vector(-15.8, 6.5, 0)),
    Part.LineSegment(App.Vector(-15.8, 6.5, 0), App.Vector(-6.5, 6.5, 0)),
    Part.LineSegment(App.Vector(-6.5, 6.5, 0), App.Vector(-6.5, 19, 0)),
    Part.LineSegment(App.Vector(-6.5, 19, 0), App.Vector(-15.8, 19, 0)),
], False)
sketch19.addConstraint([
    Sketcher.Constraint("Coincident", 0, 2, 1, 1),
    Sketcher.Constraint("Coincident", 1, 2, 2, 1),
    Sketcher.Constraint("Coincident", 2, 2, 3, 1),
    Sketcher.Constraint("Coincident", 3, 2, 0, 1),
    Sketcher.Constraint("Vertical", 0),
    Sketcher.Constraint("Horizontal", 1),
    Sketcher.Constraint("Vertical", 2),
    Sketcher.Constraint("Horizontal", 3),
    Sketcher.Constraint("DistanceX", 1, 1, 1, 2, Q("9.3 mm")),
    Sketcher.Constraint("DistanceY", 0, 2, 0, 1, Q("12.5 mm")),
    Sketcher.Constraint("DistanceY", -1, 1, 2, 2, Q("19 mm")),
    Sketcher.Constraint("DistanceX", 0, 2, -1, 1, Q("15.8 mm")),
])
sketch19.setExpression("Constraints[8]", "Params.sketch19_width")
sketch19.setExpression("Constraints[9]", "Params.sketch19_height")
pocket8 = doc.addObject("PartDesign::Pocket", "Pocket007")
body.addObject(pocket8)
pocket8.Profile = sketch19
pocket8.setExpression("Length", "Params.pocket8_length")

# Sketch on YZ plane
sketch20 = doc.addObject("Sketcher::SketchObject", "Sketch019")
body.addObject(sketch20)
sketch20.AttachmentSupport = (doc.YZ_Plane, [""])
sketch20.MapMode = "FlatFace"
sketch20.AttachmentOffset = App.Placement(App.Vector(0, 0, -12.75), App.Rotation())
sketch20.addGeometry([
    Part.LineSegment(App.Vector(-6.5, 19, 0), App.Vector(-6.5, 6.5, 0)),  # 0
    Part.LineSegment(App.Vector(-6.5, 6.5, 0), App.Vector(-15.8, 6.5, 0)),  # 1
    Part.LineSegment(App.Vector(-15.8, 6.5, 0), App.Vector(-15.8, 19, 0)),  # 2
    Part.LineSegment(App.Vector(-15.8, 19, 0), App.Vector(-6.5, 19, 0)),  # 3
    Part.LineSegment(App.Vector(16.5, 31.5, 0), App.Vector(16.5, 19.45, 0)),  # 4
    Part.LineSegment(App.Vector(16.5, 19.45, 0), App.Vector(4, 19.45, 0)),  # 5
    Part.LineSegment(App.Vector(4, 19.45, 0), App.Vector(4, 31.5, 0)),  # 6
    Part.LineSegment(App.Vector(4, 31.5, 0), App.Vector(16.5, 31.5, 0)),  # 7
], False)
sketch20.addConstraint([
    Sketcher.Constraint("Coincident", 0, 2, 1, 1),
    Sketcher.Constraint("Coincident", 1, 2, 2, 1),
    Sketcher.Constraint("Coincident", 2, 2, 3, 1),
    Sketcher.Constraint("Coincident", 3, 2, 0, 1),
    Sketcher.Constraint("Coincident", 4, 2, 5, 1),
    Sketcher.Constraint("Coincident", 5, 2, 6, 1),
    Sketcher.Constraint("Coincident", 6, 2, 7, 1),
    Sketcher.Constraint("Coincident", 7, 2, 4, 1),
    Sketcher.Constraint("Vertical", 0),
    Sketcher.Constraint("Horizontal", 1),
    Sketcher.Constraint("Vertical", 2),
    Sketcher.Constraint("Horizontal", 3),
    Sketcher.Constraint("Vertical", 4),
    Sketcher.Constraint("Horizontal", 5),
    Sketcher.Constraint("Vertical", 6),
    Sketcher.Constraint("Horizontal", 7),
    Sketcher.Constraint("Equal", 7, 0),
    Sketcher.Constraint("DistanceX", 1, 2, 1, 1, Q("9.3 mm")),
    Sketcher.Constraint("DistanceX", 5, 2, 5, 1, Q("12.5 mm")),
    Sketcher.Constraint("DistanceY", -1, 1, 2, 2, Q("19 mm")),
    Sketcher.Constraint("DistanceX", -1, 1, 5, 2, Q("4 mm")),
    Sketcher.Constraint("DistanceX", 3, 2, 4, 2, Q("23 mm")),
    Sketcher.Constraint("DistanceY", 0, 2, 6, 2, Q("25 mm")),
    Sketcher.Constraint("DistanceY", 4, 2, 4, 1, Q("12.05 mm")),
])
sketch20.setExpression("Constraints[17]", "Params.sketch20_width")
sketch20.setExpression("Constraints[18]", "Params.sketch20_width2")
sketch20.setExpression("Constraints[23]", "Params.sketch20_height")
pocket9 = doc.addObject("PartDesign::Pocket", "Pocket008")
body.addObject(pocket9)
pocket9.Profile = sketch20
pocket9.setExpression("Length", "Params.pocket9_length")
pocket9.Reversed = True

# Sketch on XZ plane
sketch21 = doc.addObject("Sketcher::SketchObject", "Sketch020")
body.addObject(sketch21)
sketch21.AttachmentSupport = (doc.XZ_Plane, [""])
sketch21.MapMode = "FlatFace"
sketch21.AttachmentOffset = App.Placement(App.Vector(0, 0, -23), App.Rotation())
sketch21.addGeometry([
    Part.LineSegment(App.Vector(26.05, 19, 0), App.Vector(26.05, 6.5, 0)),  # 0
    Part.LineSegment(App.Vector(26.05, 6.5, 0), App.Vector(16.75, 6.5, 0)),  # 1
    Part.LineSegment(App.Vector(16.75, 6.5, 0), App.Vector(16.75, 19, 0)),  # 2
    Part.LineSegment(App.Vector(16.75, 19, 0), App.Vector(26.05, 19, 0)),  # 3
    Part.LineSegment(App.Vector(6.25, 31.5, 0), App.Vector(6.25, 19.45, 0)),  # 4
    Part.LineSegment(App.Vector(6.25, 19.45, 0), App.Vector(-6.25, 19.45, 0)),  # 5
    Part.LineSegment(App.Vector(-6.25, 19.45, 0), App.Vector(-6.25, 31.5, 0)),  # 6
    Part.LineSegment(App.Vector(-6.25, 31.5, 0), App.Vector(6.25, 31.5, 0)),  # 7
], False)
sketch21.addConstraint([
    Sketcher.Constraint("Coincident", 0, 2, 1, 1),
    Sketcher.Constraint("Coincident", 1, 2, 2, 1),
    Sketcher.Constraint("Coincident", 2, 2, 3, 1),
    Sketcher.Constraint("Coincident", 3, 2, 0, 1),
    Sketcher.Constraint("Coincident", 4, 2, 5, 1),
    Sketcher.Constraint("Coincident", 5, 2, 6, 1),
    Sketcher.Constraint("Coincident", 6, 2, 7, 1),
    Sketcher.Constraint("Coincident", 7, 2, 4, 1),
    Sketcher.Constraint("Vertical", 0),
    Sketcher.Constraint("Horizontal", 1),
    Sketcher.Constraint("Vertical", 2),
    Sketcher.Constraint("Horizontal", 3),
    Sketcher.Constraint("Vertical", 4),
    Sketcher.Constraint("Horizontal", 5),
    Sketcher.Constraint("Vertical", 6),
    Sketcher.Constraint("Horizontal", 7),
    Sketcher.Constraint("Equal", 7, 0),
    Sketcher.Constraint("DistanceX", 1, 2, 1, 1, Q("9.3 mm")),
    Sketcher.Constraint("DistanceX", 5, 2, 5, 1, Q("12.5 mm")),
    Sketcher.Constraint("DistanceY", -1, 1, 2, 2, Q("19 mm")),
    Sketcher.Constraint("DistanceX", 5, 2, 2, 2, Q("23 mm")),
    Sketcher.Constraint("DistanceY", 1, 2, 6, 2, Q("25 mm")),
    Sketcher.Constraint("DistanceY", 4, 2, 4, 1, Q("12.05 mm")),
    Sketcher.Constraint("DistanceX", -1, 1, 0, 2, Q("26.05 mm")),
])
sketch21.setExpression("Constraints[17]", "Params.sketch21_width")
sketch21.setExpression("Constraints[18]", "Params.sketch21_width2")
sketch21.setExpression("Constraints[22]", "Params.sketch21_height")
pocket10 = doc.addObject("PartDesign::Pocket", "Pocket009")
body.addObject(pocket10)
pocket10.Profile = sketch21
pocket10.setExpression("Length", "Params.pocket10_length")
pocket10.Reversed = True

# Sketch on XY plane
sketch22 = doc.addObject("Sketcher::SketchObject", "Sketch021")
body.addObject(sketch22)
sketch22.AttachmentSupport = (doc.XY_Plane, [""])
sketch22.MapMode = "FlatFace"
sketch22.AttachmentOffset = App.Placement(App.Vector(0, 0, 25.5), App.Rotation())
sketch22.addGeometry([
    Part.LineSegment(App.Vector(16.75, 16.5, 0), App.Vector(16.75, 4, 0)),  # 0
    Part.LineSegment(App.Vector(16.75, 4, 0), App.Vector(38.75, 4, 0)),  # 1
    Part.LineSegment(App.Vector(38.75, 4, 0), App.Vector(38.75, 16.5, 0)),  # 2
    Part.LineSegment(App.Vector(38.75, 16.5, 0), App.Vector(16.75, 16.5, 0)),  # 3
    Part.LineSegment(App.Vector(-6.25, -6.5, 0), App.Vector(-6.25, -28.5, 0)),  # 4
    Part.LineSegment(App.Vector(-6.25, -28.5, 0), App.Vector(6.25, -28.5, 0)),  # 5
    Part.LineSegment(App.Vector(6.25, -28.5, 0), App.Vector(6.25, -6.5, 0)),  # 6
    Part.LineSegment(App.Vector(6.25, -6.5, 0), App.Vector(-6.25, -6.5, 0)),  # 7
], False)
sketch22.addConstraint([
    Sketcher.Constraint("Coincident", 0, 2, 1, 1),
    Sketcher.Constraint("Coincident", 1, 2, 2, 1),
    Sketcher.Constraint("Coincident", 2, 2, 3, 1),
    Sketcher.Constraint("Coincident", 3, 2, 0, 1),
    Sketcher.Constraint("Coincident", 4, 2, 5, 1),
    Sketcher.Constraint("Coincident", 5, 2, 6, 1),
    Sketcher.Constraint("Coincident", 6, 2, 7, 1),
    Sketcher.Constraint("Coincident", 7, 2, 4, 1),
    Sketcher.Constraint("Vertical", 0),
    Sketcher.Constraint("Horizontal", 1),
    Sketcher.Constraint("Vertical", 2),
    Sketcher.Constraint("Horizontal", 3),
    Sketcher.Constraint("Vertical", 4),
    Sketcher.Constraint("Horizontal", 5),
    Sketcher.Constraint("Vertical", 6),
    Sketcher.Constraint("Horizontal", 7),
    Sketcher.Constraint("Equal", 7, 0),
    Sketcher.Constraint("Equal", 3, 4),
    Sketcher.Constraint("DistanceX", 1, 1, 1, 2, Q("22 mm")),
    Sketcher.Constraint("DistanceX", 5, 1, 5, 2, Q("12.5 mm")),
    Sketcher.Constraint("DistanceY", -1, 1, 0, 2, Q("4 mm")),
    Sketcher.Constraint("DistanceX", 4, 2, 0, 2, Q("23 mm")),
    Sketcher.Constraint("DistanceY", 4, 2, 3, 2, Q("45 mm")),
    Sketcher.Constraint("DistanceX", -1, 1, 0, 2, Q("16.75 mm")),
])
sketch22.setExpression("Constraints[18]", "Params.sketch22_width")
sketch22.setExpression("Constraints[19]", "Params.sketch22_width2")
pocket11 = doc.addObject("PartDesign::Pocket", "Pocket010")
body.addObject(pocket11)
pocket11.Profile = sketch22
pocket11.setExpression("Length", "Params.pocket11_length")

# Sketch on XZ plane
sketch23 = doc.addObject("Sketcher::SketchObject", "Sketch022")
body.addObject(sketch23)
sketch23.AttachmentSupport = (doc.XZ_Plane, [""])
sketch23.MapMode = "FlatFace"
sketch23.AttachmentOffset = App.Placement(App.Vector(0, 0, 2.5), App.Rotation())
sketch23.addGeometry([
    Part.LineSegment(App.Vector(16.75, 19, 0), App.Vector(16.75, 6.5, 0)),
    Part.LineSegment(App.Vector(16.75, 6.5, 0), App.Vector(26.05, 6.5, 0)),
    Part.LineSegment(App.Vector(26.05, 6.5, 0), App.Vector(26.05, 19, 0)),
    Part.LineSegment(App.Vector(26.05, 19, 0), App.Vector(16.75, 19, 0)),
], False)
sketch23.addConstraint([
    Sketcher.Constraint("Coincident", 0, 2, 1, 1),
    Sketcher.Constraint("Coincident", 1, 2, 2, 1),
    Sketcher.Constraint("Coincident", 2, 2, 3, 1),
    Sketcher.Constraint("Coincident", 3, 2, 0, 1),
    Sketcher.Constraint("Vertical", 0),
    Sketcher.Constraint("Horizontal", 1),
    Sketcher.Constraint("Vertical", 2),
    Sketcher.Constraint("Horizontal", 3),
    Sketcher.Constraint("DistanceX", 1, 1, 1, 2, Q("9.3 mm")),
    Sketcher.Constraint("DistanceY", 0, 2, 0, 1, Q("12.5 mm")),
    Sketcher.Constraint("DistanceY", -1, 1, 2, 2, Q("19 mm")),
    Sketcher.Constraint("DistanceX", -1, 1, 0, 2, Q("16.75 mm")),
])
sketch23.setExpression("Constraints[8]", "Params.sketch23_width")
sketch23.setExpression("Constraints[9]", "Params.sketch23_height")
pocket12 = doc.addObject("PartDesign::Pocket", "Pocket011")
body.addObject(pocket12)
pocket12.Profile = sketch23
pocket12.setExpression("Length", "Params.pocket12_length")

doc.recompute()
